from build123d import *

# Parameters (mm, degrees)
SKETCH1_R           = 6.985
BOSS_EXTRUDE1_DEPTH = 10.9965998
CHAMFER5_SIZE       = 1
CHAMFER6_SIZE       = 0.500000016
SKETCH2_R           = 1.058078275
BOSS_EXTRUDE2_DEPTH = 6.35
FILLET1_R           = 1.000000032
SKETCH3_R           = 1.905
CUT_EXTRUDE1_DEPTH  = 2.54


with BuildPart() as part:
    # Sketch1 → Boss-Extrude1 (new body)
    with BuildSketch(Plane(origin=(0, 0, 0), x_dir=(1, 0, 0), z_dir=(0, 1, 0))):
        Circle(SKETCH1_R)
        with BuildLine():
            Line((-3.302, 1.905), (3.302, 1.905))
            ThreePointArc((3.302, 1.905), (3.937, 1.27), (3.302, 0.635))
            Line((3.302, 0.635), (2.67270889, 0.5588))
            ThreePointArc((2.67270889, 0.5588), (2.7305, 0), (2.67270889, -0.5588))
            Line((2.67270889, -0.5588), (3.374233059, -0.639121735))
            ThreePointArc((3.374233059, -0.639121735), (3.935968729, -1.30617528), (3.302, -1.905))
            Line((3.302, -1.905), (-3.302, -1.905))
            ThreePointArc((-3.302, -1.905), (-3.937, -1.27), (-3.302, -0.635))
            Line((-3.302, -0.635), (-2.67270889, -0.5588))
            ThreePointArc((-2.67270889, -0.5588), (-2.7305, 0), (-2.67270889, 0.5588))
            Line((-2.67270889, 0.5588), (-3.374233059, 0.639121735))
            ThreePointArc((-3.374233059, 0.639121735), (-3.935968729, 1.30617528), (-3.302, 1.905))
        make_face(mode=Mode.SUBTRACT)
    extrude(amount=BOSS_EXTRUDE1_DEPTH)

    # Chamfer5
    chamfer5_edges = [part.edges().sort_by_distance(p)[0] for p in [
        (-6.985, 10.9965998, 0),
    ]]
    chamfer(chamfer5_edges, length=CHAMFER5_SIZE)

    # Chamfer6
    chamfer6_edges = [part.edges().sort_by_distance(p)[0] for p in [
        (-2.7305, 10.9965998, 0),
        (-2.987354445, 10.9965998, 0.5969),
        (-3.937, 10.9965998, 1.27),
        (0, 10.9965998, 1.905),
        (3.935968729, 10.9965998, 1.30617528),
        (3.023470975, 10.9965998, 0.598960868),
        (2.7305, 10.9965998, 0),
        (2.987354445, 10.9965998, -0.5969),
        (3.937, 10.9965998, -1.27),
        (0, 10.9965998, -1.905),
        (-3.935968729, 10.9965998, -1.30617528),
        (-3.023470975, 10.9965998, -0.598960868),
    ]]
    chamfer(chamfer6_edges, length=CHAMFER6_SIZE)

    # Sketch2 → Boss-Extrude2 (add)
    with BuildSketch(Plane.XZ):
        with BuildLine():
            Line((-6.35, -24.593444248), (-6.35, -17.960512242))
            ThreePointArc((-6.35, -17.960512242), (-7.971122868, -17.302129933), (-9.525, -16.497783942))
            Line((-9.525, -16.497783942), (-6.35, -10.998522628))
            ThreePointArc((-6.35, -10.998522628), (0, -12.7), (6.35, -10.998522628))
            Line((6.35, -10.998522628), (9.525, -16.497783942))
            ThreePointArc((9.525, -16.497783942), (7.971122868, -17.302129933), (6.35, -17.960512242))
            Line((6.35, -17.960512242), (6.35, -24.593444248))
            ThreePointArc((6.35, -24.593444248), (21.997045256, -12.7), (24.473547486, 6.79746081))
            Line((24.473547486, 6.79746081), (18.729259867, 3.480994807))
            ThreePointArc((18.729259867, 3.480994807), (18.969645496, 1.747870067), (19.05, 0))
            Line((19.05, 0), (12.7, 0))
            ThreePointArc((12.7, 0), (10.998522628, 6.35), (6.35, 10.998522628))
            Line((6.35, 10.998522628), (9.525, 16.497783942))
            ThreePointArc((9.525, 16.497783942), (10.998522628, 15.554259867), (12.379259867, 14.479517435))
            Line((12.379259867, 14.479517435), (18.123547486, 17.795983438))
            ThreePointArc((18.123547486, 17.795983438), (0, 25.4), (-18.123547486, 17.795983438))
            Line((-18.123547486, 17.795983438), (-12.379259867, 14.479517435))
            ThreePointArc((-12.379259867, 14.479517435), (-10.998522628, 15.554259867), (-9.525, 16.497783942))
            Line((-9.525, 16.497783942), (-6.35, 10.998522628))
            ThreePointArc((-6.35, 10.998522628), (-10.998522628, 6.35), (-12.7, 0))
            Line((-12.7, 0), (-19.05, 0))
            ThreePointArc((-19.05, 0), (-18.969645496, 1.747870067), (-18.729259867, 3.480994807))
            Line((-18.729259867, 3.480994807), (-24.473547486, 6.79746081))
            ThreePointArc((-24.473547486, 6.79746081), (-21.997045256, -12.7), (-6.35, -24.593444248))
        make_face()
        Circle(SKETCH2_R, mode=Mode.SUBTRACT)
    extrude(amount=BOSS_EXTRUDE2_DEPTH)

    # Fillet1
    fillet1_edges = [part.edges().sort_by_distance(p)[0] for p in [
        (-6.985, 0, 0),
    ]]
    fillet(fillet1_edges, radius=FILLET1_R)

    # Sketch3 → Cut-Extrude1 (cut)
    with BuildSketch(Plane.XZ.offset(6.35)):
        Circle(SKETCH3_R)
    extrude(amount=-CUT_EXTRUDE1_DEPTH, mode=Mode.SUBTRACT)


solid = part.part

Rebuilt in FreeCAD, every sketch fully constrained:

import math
import FreeCAD as App
import Part
import Sketcher
from FreeCAD import Vector
Q = App.Units.Quantity


def edges_at(feature, points):
    """Names of the edges that pass closest to the given points."""
    edges = feature.Shape.Edges
    near = lambda p: min(range(len(edges)), key=lambda i: edges[i].distToShape(Part.Vertex(*p))[0])
    return sorted({f"Edge{near(p) + 1}" for p in points})

doc = App.newDocument("Part")
body = doc.addObject("PartDesign::Body", "Body")

# Sketch on XZ plane
sketch1 = body.newObject("Sketcher::SketchObject", "Sketch")
sketch1.AttachmentSupport = (doc.getObject("XZ_Plane"), [""])
sketch1.MapMode = "FlatFace"
sketch1.addGeometry(Part.Circle(Vector(0, 0, 0), Vector(0, 0, 1), 7), False)
sketch1.addGeometry(Part.ArcOfCircle(Part.Circle(Vector(-3.3, -1.3, 0), Vector(0, 0, 1), 0.6), math.radians(97), math.radians(270)), False)
sketch1.addGeometry(Part.LineSegment(Vector(-3.3, -1.9, 0), Vector(3.3, -1.9, 0)), False)
sketch1.addGeometry(Part.ArcOfCircle(Part.Circle(Vector(3.3, -1.3, 0), Vector(0, 0, 1), 0.6), math.radians(-90), math.radians(90)), False)
sketch1.addGeometry(Part.LineSegment(Vector(3.3, -0.6, 0), Vector(2.7, -0.6, 0)), False)
sketch1.addGeometry(Part.ArcOfCircle(Part.Circle(Vector(0, 0, 0), Vector(0, 0, 1), 2.7), math.radians(-12), math.radians(12)), False)
sketch1.addGeometry(Part.LineSegment(Vector(2.7, 0.6, 0), Vector(3.4, 0.6, 0)), False)
sketch1.addGeometry(Part.ArcOfCircle(Part.Circle(Vector(3.3, 1.3, 0), Vector(0, 0, 1), 0.6), math.radians(-83), math.radians(90)), False)
sketch1.addGeometry(Part.LineSegment(Vector(3.3, 1.9, 0), Vector(-3.3, 1.9, 0)), False)
sketch1.addGeometry(Part.ArcOfCircle(Part.Circle(Vector(-3.3, 1.3, 0), Vector(0, 0, 1), 0.6), math.radians(90), math.radians(270)), False)
sketch1.addGeometry(Part.LineSegment(Vector(-3.3, 0.6, 0), Vector(-2.7, 0.6, 0)), False)
sketch1.addGeometry(Part.ArcOfCircle(Part.Circle(Vector(0, 0, 0), Vector(0, 0, 1), 2.7), math.radians(168), math.radians(192)), False)
sketch1.addGeometry(Part.LineSegment(Vector(-2.7, -0.6, 0), Vector(-3.4, -0.6, 0)), False)
sketch1.addConstraint(Sketcher.Constraint("Tangent", 1, 2, 2, 1))
sketch1.addConstraint(Sketcher.Constraint("Tangent", 2, 2, 3, 1))
sketch1.addConstraint(Sketcher.Constraint("Coincident", 3, 2, 4, 1))
sketch1.addConstraint(Sketcher.Constraint("Coincident", 4, 2, 5, 1))
sketch1.addConstraint(Sketcher.Constraint("Coincident", 5, 2, 6, 1))
sketch1.addConstraint(Sketcher.Constraint("Tangent", 6, 2, 7, 1))
sketch1.addConstraint(Sketcher.Constraint("Tangent", 7, 2, 8, 1))
sketch1.addConstraint(Sketcher.Constraint("Tangent", 8, 2, 9, 1))
sketch1.addConstraint(Sketcher.Constraint("Coincident", 9, 2, 10, 1))
sketch1.addConstraint(Sketcher.Constraint("Coincident", 10, 2, 11, 1))
sketch1.addConstraint(Sketcher.Constraint("Coincident", 11, 2, 12, 1))
sketch1.addConstraint(Sketcher.Constraint("Tangent", 12, 2, 1, 1))
sketch1.addConstraint(Sketcher.Constraint("Horizontal", 2))
sketch1.addConstraint(Sketcher.Constraint("Horizontal", 8))
sketch1.addConstraint(Sketcher.Constraint("Coincident", 0, 3, -1, 1))
sketch1.addConstraint(Sketcher.Constraint("Coincident", 5, 3, -1, 1))
sketch1.addConstraint(Sketcher.Constraint("Coincident", 11, 3, -1, 1))
sketch1.addConstraint(Sketcher.Constraint("Equal", 1, 3))
sketch1.addConstraint(Sketcher.Constraint("Equal", 3, 7))
sketch1.addConstraint(Sketcher.Constraint("Equal", 7, 9))
sketch1.addConstraint(Sketcher.Constraint("Equal", 5, 11))
sketch1.addConstraint(Sketcher.Constraint("Symmetric", 1, 3, 7, 3, -1, 1))
sketch1.addConstraint(Sketcher.Constraint("Parallel", 4, 10))
sketch1.addConstraint(Sketcher.Constraint("Parallel", 6, 12))
sketch1.addConstraint(Sketcher.Constraint("Horizontal", 5, 2, 10, 2))
sketch1.addConstraint(Sketcher.Constraint("Horizontal", 4, 2, 11, 2))
sketch1.addConstraint(Sketcher.Constraint("Vertical", 3, 3, 7, 3))
sketch1.addConstraint(Sketcher.Constraint("Vertical", 1, 3, 9, 3))
sketch1.addConstraint(Sketcher.Constraint("Vertical", 2, 2, 3, 2))
sketch1.addConstraint(Sketcher.Constraint("Diameter", 0, Q("0.55 in")))
sketch1.addConstraint(Sketcher.Constraint("Radius", 1, Q("0.025 in")))
sketch1.addConstraint(Sketcher.Constraint("DistanceX", 2, 1, 2, 2, Q("0.26 in")))
sketch1.addConstraint(Sketcher.Constraint("Radius", 5, Q("0.1075 in")))
sketch1.addConstraint(Sketcher.Constraint("DistanceY", 3, 3, 7, 3, Q("0.1 in")))
sketch1.addConstraint(Sketcher.Constraint("DistanceY", 4, 2, -1, 1, Q("0.022 in")))
pad1 = body.newObject("PartDesign::Pad", "Pad")
pad1.Profile = sketch1
pad1.Length = 10.9966
pad1.Reversed = True
doc.recompute()

chamfer = body.newObject("PartDesign::Chamfer", "Chamfer")
chamfer.Base = (pad1, edges_at(pad1, [(-6.985, 10.997, 0)]))
chamfer.Size = 1
doc.recompute()

chamfer2 = body.newObject("PartDesign::Chamfer", "Chamfer001")
chamfer2.Base = (chamfer, edges_at(chamfer, [
    (-2.731, 10.997, 0),
    (-2.987, 10.997, 0.597),
    (-3.937, 10.997, 1.27),
    (0, 10.997, 1.905),
    (3.936, 10.997, 1.306),
    (3.023, 10.997, 0.599),
    (2.731, 10.997, 0),
    (2.987, 10.997, -0.597),
    (3.937, 10.997, -1.27),
    (0, 10.997, -1.905),
    (-3.936, 10.997, -1.306),
    (-3.023, 10.997, -0.599),
]))
chamfer2.Size = 0.5

# Sketch on XZ plane
sketch2 = body.newObject("Sketcher::SketchObject", "Sketch001")
sketch2.AttachmentSupport = (doc.getObject("XZ_Plane"), [""])
sketch2.MapMode = "FlatFace"
sketch2.addGeometry(Part.LineSegment(Vector(-6.3, -24.6, 0), Vector(-6.3, -18, 0)), False)
sketch2.addGeometry(Part.ArcOfCircle(Part.Circle(Vector(0, 0, 0), Vector(0, 0, 1), 19.1), math.radians(-120), math.radians(-109.47)), False)
sketch2.addGeometry(Part.LineSegment(Vector(-9.5, -16.5, 0), Vector(-6.3, -11, 0)), False)
sketch2.addGeometry(Part.ArcOfCircle(Part.Circle(Vector(0, 0, 0), Vector(0, 0, 1), 12.7), math.radians(-120), math.radians(-60)), False)
sketch2.addGeometry(Part.LineSegment(Vector(6.3, -11, 0), Vector(9.5, -16.5, 0)), False)
sketch2.addGeometry(Part.ArcOfCircle(Part.Circle(Vector(0, 0, 0), Vector(0, 0, 1), 19.1), math.radians(-70.53), math.radians(-60)), False)
sketch2.addGeometry(Part.LineSegment(Vector(6.3, -18, 0), Vector(6.3, -24.6, 0)), False)
sketch2.addGeometry(Part.ArcOfCircle(Part.Circle(Vector(0, 0, 0), Vector(0, 0, 1), 25.4), math.radians(-76), math.radians(16)), False)
sketch2.addGeometry(Part.LineSegment(Vector(24.5, 6.8, 0), Vector(18.7, 3.5, 0)), False)
sketch2.addGeometry(Part.ArcOfCircle(Part.Circle(Vector(0, 0, 0), Vector(0, 0, 1), 19), math.radians(0), math.radians(10.53)), False)
sketch2.addGeometry(Part.LineSegment(Vector(19.1, 0, 0), Vector(12.7, 0, 0)), False)
sketch2.addGeometry(Part.ArcOfCircle(Part.Circle(Vector(0, 0, 0), Vector(0, 0, 1), 12.7), math.radians(0), math.radians(60)), False)
sketch2.addGeometry(Part.LineSegment(Vector(6.3, 11, 0), Vector(9.5, 16.5, 0)), False)
sketch2.addGeometry(Part.ArcOfCircle(Part.Circle(Vector(0, 0, 0), Vector(0, 0, 1), 19), math.radians(49.47), math.radians(60)), False)
sketch2.addGeometry(Part.LineSegment(Vector(12.4, 14.5, 0), Vector(18.1, 17.8, 0)), False)
sketch2.addGeometry(Part.ArcOfCircle(Part.Circle(Vector(0, 0, 0), Vector(0, 0, 1), 25.4), math.radians(44), math.radians(136)), False)
sketch2.addGeometry(Part.LineSegment(Vector(-18.1, 17.8, 0), Vector(-12.4, 14.5, 0)), False)
sketch2.addGeometry(Part.ArcOfCircle(Part.Circle(Vector(0, 0, 0), Vector(0, 0, 1), 19), math.radians(120), math.radians(130.53)), False)
sketch2.addGeometry(Part.LineSegment(Vector(-9.5, 16.5, 0), Vector(-6.3, 11, 0)), False)
sketch2.addGeometry(Part.ArcOfCircle(Part.Circle(Vector(0, 0, 0), Vector(0, 0, 1), 12.7), math.radians(120), math.radians(180)), False)
sketch2.addGeometry(Part.LineSegment(Vector(-12.7, 0, 0), Vector(-19.1, 0, 0)), False)
sketch2.addGeometry(Part.ArcOfCircle(Part.Circle(Vector(0, 0, 0), Vector(0, 0, 1), 19), math.radians(169.47), math.radians(180)), False)
sketch2.addGeometry(Part.LineSegment(Vector(-18.7, 3.5, 0), Vector(-24.5, 6.8, 0)), False)
sketch2.addGeometry(Part.ArcOfCircle(Part.Circle(Vector(0, 0, 0), Vector(0, 0, 1), 25.4), math.radians(164), math.radians(256)), False)
sketch2.addGeometry(Part.Circle(Vector(0, 0, 0), Vector(0, 0, 1), 1.1), False)
sketch2.addConstraint(Sketcher.Constraint("Coincident", 0, 2, 1, 2))
sketch2.addConstraint(Sketcher.Constraint("Coincident", 1, 1, 2, 1))
sketch2.addConstraint(Sketcher.Constraint("Coincident", 2, 2, 3, 1))
sketch2.addConstraint(Sketcher.Constraint("Coincident", 3, 2, 4, 1))
sketch2.addConstraint(Sketcher.Constraint("Coincident", 4, 2, 5, 2))
sketch2.addConstraint(Sketcher.Constraint("Coincident", 5, 1, 6, 1))
sketch2.addConstraint(Sketcher.Constraint("Coincident", 6, 2, 7, 1))
sketch2.addConstraint(Sketcher.Constraint("Coincident", 7, 2, 8, 1))
sketch2.addConstraint(Sketcher.Constraint("Coincident", 8, 2, 9, 2))
sketch2.addConstraint(Sketcher.Constraint("Coincident", 9, 1, 10, 1))
sketch2.addConstraint(Sketcher.Constraint("Coincident", 10, 2, 11, 1))
sketch2.addConstraint(Sketcher.Constraint("Coincident", 11, 2, 12, 1))
sketch2.addConstraint(Sketcher.Constraint("Coincident", 12, 2, 13, 2))
sketch2.addConstraint(Sketcher.Constraint("Coincident", 13, 1, 14, 1))
sketch2.addConstraint(Sketcher.Constraint("Coincident", 14, 2, 15, 1))
sketch2.addConstraint(Sketcher.Constraint("Coincident", 15, 2, 16, 1))
sketch2.addConstraint(Sketcher.Constraint("Coincident", 16, 2, 17, 2))
sketch2.addConstraint(Sketcher.Constraint("Coincident", 17, 1, 18, 1))
sketch2.addConstraint(Sketcher.Constraint("Coincident", 18, 2, 19, 1))
sketch2.addConstraint(Sketcher.Constraint("Coincident", 19, 2, 20, 1))
sketch2.addConstraint(Sketcher.Constraint("Coincident", 20, 2, 21, 2))
sketch2.addConstraint(Sketcher.Constraint("Coincident", 21, 1, 22, 1))
sketch2.addConstraint(Sketcher.Constraint("Coincident", 22, 2, 23, 1))
sketch2.addConstraint(Sketcher.Constraint("Coincident", 23, 2, 0, 1))
sketch2.addConstraint(Sketcher.Constraint("Vertical", 0))
sketch2.addConstraint(Sketcher.Constraint("Vertical", 6))
sketch2.addConstraint(Sketcher.Constraint("Horizontal", 10))
sketch2.addConstraint(Sketcher.Constraint("Horizontal", 20))
sketch2.addConstraint(Sketcher.Constraint("Coincident", 1, 3, -1, 1))
sketch2.addConstraint(Sketcher.Constraint("Coincident", 3, 3, -1, 1))
sketch2.addConstraint(Sketcher.Constraint("Coincident", 5, 3, -1, 1))
sketch2.addConstraint(Sketcher.Constraint("Coincident", 7, 3, -1, 1))
sketch2.addConstraint(Sketcher.Constraint("Coincident", 9, 3, -1, 1))
sketch2.addConstraint(Sketcher.Constraint("Coincident", 11, 3, -1, 1))
sketch2.addConstraint(Sketcher.Constraint("Coincident", 13, 3, -1, 1))
sketch2.addConstraint(Sketcher.Constraint("Coincident", 15, 3, -1, 1))
sketch2.addConstraint(Sketcher.Constraint("Coincident", 17, 3, -1, 1))
sketch2.addConstraint(Sketcher.Constraint("Coincident", 19, 3, -1, 1))
sketch2.addConstraint(Sketcher.Constraint("Coincident", 21, 3, -1, 1))
sketch2.addConstraint(Sketcher.Constraint("Coincident", 23, 3, -1, 1))
sketch2.addConstraint(Sketcher.Constraint("Coincident", 24, 3, -1, 1))
sketch2.addConstraint(Sketcher.Constraint("Equal", 1, 5))
sketch2.addConstraint(Sketcher.Constraint("Equal", 5, 9))
sketch2.addConstraint(Sketcher.Constraint("Equal", 3, 11))
sketch2.addConstraint(Sketcher.Constraint("Equal", 9, 13))
sketch2.addConstraint(Sketcher.Constraint("Equal", 7, 15))
sketch2.addConstraint(Sketcher.Constraint("Equal", 13, 17))
sketch2.addConstraint(Sketcher.Constraint("Equal", 11, 19))
sketch2.addConstraint(Sketcher.Constraint("Equal", 17, 21))
sketch2.addConstraint(Sketcher.Constraint("Equal", 15, 23))
sketch2.addConstraint(Sketcher.Constraint("PointOnObject", 9, 1, -1))
sketch2.addConstraint(Sketcher.Constraint("PointOnObject", 19, 2, -1))
sketch2.addConstraint(Sketcher.Constraint("Perpendicular", 4, 8))
sketch2.addConstraint(Sketcher.Constraint("Parallel", 2, 12))
sketch2.addConstraint(Sketcher.Constraint("Parallel", 8, 14))
sketch2.addConstraint(Sketcher.Constraint("Perpendicular", 12, 16))
sketch2.addConstraint(Sketcher.Constraint("Perpendicular", 14, 18))
sketch2.addConstraint(Sketcher.Constraint("Parallel", 16, 22))
sketch2.addConstraint(Sketcher.Constraint("Horizontal", 2, 2, 3, 2))
sketch2.addConstraint(Sketcher.Constraint("Horizontal", 1, 1, 4, 2))
sketch2.addConstraint(Sketcher.Constraint("Horizontal", 0, 2, 5, 1))
sketch2.addConstraint(Sketcher.Constraint("Horizontal", 14, 2, 15, 2))
sketch2.addConstraint(Sketcher.Constraint("Horizontal", 12, 2, 17, 1))
sketch2.addConstraint(Sketcher.Constraint("Horizontal", 8, 2, 21, 1))
sketch2.addConstraint(Sketcher.Constraint("Vertical", 0, 2, 2, 2))
sketch2.addConstraint(Sketcher.Constraint("Vertical", 6, 2, 11, 2))
sketch2.addConstraint(Sketcher.Constraint("Equal", 8, 14))
sketch2.addConstraint(Sketcher.Constraint("Radius", 7, Q("1 in")))
sketch2.addConstraint(Sketcher.Constraint("Radius", 3, Q("0.5 in")))
sketch2.addConstraint(Sketcher.Constraint("Radius", 1, Q("0.75 in")))
sketch2.addConstraint(Sketcher.Constraint("Angle", 2, Q("60 deg")))
sketch2.addConstraint(Sketcher.Constraint("DistanceX", 0, 2, 5, 1, Q("0.5 in")))
sketch2.addConstraint(Sketcher.Constraint("DistanceX", 13, 1, 8, 2, Q("0.25 in")))
sketch2.addConstraint(Sketcher.Constraint("Diameter", 24, Q("2.116157 mm")))
pad2 = body.newObject("PartDesign::Pad", "Pad001")
pad2.Profile = sketch2
pad2.Length = Q("0.25 in")
doc.recompute()

fillet = body.newObject("PartDesign::Fillet", "Fillet")
fillet.Base = (pad2, edges_at(pad2, [(-6.985, 0, 0)]))
fillet.Radius = 1

# Sketch on XZ plane
sketch3 = body.newObject("Sketcher::SketchObject", "Sketch002")
sketch3.AttachmentSupport = (doc.getObject("XZ_Plane"), [""])
sketch3.MapMode = "FlatFace"
sketch3.AttachmentOffset = App.Placement(Vector(0, 0, 0.25 * 25.4), App.Rotation())
sketch3.addGeometry(Part.Circle(Vector(0, 0, 0), Vector(0, 0, 1), 1.9), False)
sketch3.addConstraint(Sketcher.Constraint("Coincident", 0, 3, -1, 1))
sketch3.addConstraint(Sketcher.Constraint("Diameter", 0, Q("0.15 in")))
pocket1 = body.newObject("PartDesign::Pocket", "Pocket")
pocket1.Profile = sketch3
pocket1.Length = Q("0.1 in")

doc.recompute()
